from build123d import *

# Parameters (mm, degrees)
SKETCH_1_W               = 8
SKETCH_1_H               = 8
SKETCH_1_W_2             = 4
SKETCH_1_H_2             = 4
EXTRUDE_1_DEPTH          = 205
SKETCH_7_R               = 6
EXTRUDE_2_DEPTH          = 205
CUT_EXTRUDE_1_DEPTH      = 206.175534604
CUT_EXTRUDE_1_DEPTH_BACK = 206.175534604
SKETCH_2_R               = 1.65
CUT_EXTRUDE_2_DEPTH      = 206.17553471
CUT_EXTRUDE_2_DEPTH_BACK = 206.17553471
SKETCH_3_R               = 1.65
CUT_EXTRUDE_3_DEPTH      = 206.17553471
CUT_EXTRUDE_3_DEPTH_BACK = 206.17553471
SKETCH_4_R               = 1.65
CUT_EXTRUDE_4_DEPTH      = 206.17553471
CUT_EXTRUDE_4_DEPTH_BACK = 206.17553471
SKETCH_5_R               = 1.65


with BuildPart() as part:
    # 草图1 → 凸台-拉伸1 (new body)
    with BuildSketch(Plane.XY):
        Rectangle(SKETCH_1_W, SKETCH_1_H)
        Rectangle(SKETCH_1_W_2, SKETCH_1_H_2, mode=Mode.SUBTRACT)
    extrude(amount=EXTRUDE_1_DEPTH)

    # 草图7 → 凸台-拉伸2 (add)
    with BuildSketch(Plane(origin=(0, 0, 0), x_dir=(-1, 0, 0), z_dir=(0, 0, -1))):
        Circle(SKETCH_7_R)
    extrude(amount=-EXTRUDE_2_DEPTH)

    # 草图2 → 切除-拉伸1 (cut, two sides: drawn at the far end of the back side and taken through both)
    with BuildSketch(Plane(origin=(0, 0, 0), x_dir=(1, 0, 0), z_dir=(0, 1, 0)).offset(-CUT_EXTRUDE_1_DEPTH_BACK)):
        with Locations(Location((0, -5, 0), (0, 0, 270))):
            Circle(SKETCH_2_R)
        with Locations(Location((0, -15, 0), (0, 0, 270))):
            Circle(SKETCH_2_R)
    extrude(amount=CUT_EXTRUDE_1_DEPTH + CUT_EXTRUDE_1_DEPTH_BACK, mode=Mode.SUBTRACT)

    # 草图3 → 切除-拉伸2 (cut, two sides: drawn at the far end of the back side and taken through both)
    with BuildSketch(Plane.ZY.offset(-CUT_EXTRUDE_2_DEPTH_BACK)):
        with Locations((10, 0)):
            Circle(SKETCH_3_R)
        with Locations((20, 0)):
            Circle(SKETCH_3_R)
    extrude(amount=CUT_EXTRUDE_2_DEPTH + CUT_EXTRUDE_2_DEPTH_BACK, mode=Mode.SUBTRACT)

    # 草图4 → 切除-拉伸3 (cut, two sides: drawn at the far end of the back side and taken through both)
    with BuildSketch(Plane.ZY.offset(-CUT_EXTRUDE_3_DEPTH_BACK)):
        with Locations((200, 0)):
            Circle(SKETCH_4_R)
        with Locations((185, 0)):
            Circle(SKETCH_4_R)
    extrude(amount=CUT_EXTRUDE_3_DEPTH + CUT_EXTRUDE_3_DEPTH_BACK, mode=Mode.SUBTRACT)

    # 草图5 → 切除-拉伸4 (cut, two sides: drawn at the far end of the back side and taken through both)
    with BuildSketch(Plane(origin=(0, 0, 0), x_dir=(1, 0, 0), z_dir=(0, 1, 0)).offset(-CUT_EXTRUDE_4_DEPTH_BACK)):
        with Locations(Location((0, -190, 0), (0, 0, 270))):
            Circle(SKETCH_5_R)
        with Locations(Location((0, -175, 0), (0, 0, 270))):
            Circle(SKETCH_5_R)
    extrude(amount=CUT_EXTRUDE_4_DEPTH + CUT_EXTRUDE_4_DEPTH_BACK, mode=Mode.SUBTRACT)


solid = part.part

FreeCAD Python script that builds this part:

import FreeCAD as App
import Part
import Sketcher
from FreeCAD import Vector


def add_polygon(sketch, points):
    """Adds a closed chain of lines whose ends are joined by coincident constraints."""
    first, n = sketch.GeometryCount, len(points)
    for a, b in zip(points, points[1:] + points[:1]):
        sketch.addGeometry(Part.LineSegment(App.Vector(*a, 0), App.Vector(*b, 0)), False)
    for i in range(n):
        sketch.addConstraint(Sketcher.Constraint("Coincident", first + i, 2, first + (i + 1) % n, 1))

doc = App.newDocument("Part")
body = doc.addObject("PartDesign::Body", "Body")

# Sketch on XY plane
sketch1 = body.newObject("Sketcher::SketchObject", "Sketch")
sketch1.AttachmentSupport = (doc.getObject("XY_Plane"), [""])
sketch1.MapMode = "FlatFace"
add_polygon(sketch1, [(-4, 4), (-4, -4), (4, -4), (4, 4)])  # lines 0-3
add_polygon(sketch1, [(2, -2), (-2, -2), (-2, 2), (2, 2)])  # lines 4-7
sketch1.addConstraint([
    Sketcher.Constraint("Vertical", 0),
    Sketcher.Constraint("Horizontal", 1),
    Sketcher.Constraint("Vertical", 2),
    Sketcher.Constraint("Horizontal", 3),
    Sketcher.Constraint("Horizontal", 4),
    Sketcher.Constraint("Vertical", 5),
    Sketcher.Constraint("Horizontal", 6),
    Sketcher.Constraint("Vertical", 7),
    Sketcher.Constraint("Symmetric", 0, 2, 2, 2, -1, 1),
    Sketcher.Constraint("Symmetric", 4, 2, 6, 2, -1, 1),
    Sketcher.Constraint("Equal", 3, 0),
    Sketcher.Constraint("Equal", 6, 5),
    Sketcher.Constraint("DistanceX", 1, 1, 1, 2, 8.0),
    Sketcher.Constraint("DistanceX", 4, 2, 4, 1, 4.0),
])
pad1 = body.newObject("PartDesign::Pad", "Pad")
pad1.Profile = sketch1
pad1.Length = 205

# Sketch on XY plane
sketch2 = body.newObject("Sketcher::SketchObject", "Sketch001")
sketch2.AttachmentSupport = (doc.getObject("XY_Plane"), [""])
sketch2.MapMode = "FlatFace"
sketch2.addGeometry(Part.Circle(Vector(0, 0, 0), Vector(0, 0, 1), 6), False)
sketch2.addConstraint([
    Sketcher.Constraint("Coincident", 0, 3, -1, 1),
    Sketcher.Constraint("Diameter", 0, 12.0),
])
pad2 = body.newObject("PartDesign::Pad", "Pad001")
pad2.Profile = sketch2
pad2.Length = 205

# Sketch on XZ plane
sketch3 = body.newObject("Sketcher::SketchObject", "Sketch002")
sketch3.AttachmentSupport = (doc.getObject("XZ_Plane"), [""])
sketch3.MapMode = "FlatFace"
sketch3.addGeometry([
    Part.Circle(Vector(0, 5, 0), Vector(0, 0, 1), 1.6),
    Part.Circle(Vector(0, 15, 0), Vector(0, 0, 1), 1.6),
], False)
sketch3.addConstraint([
    Sketcher.Constraint("Equal", 0, 1),
    Sketcher.Constraint("PointOnObject", 0, 3, -2),
    Sketcher.Constraint("PointOnObject", 1, 3, -2),
    Sketcher.Constraint("Diameter", 0, 3.3),
    Sketcher.Constraint("DistanceY", -1, 1, 0, 3, 5.0),
    Sketcher.Constraint("DistanceY", -1, 1, 1, 3, 15.0),
])
pocket1 = body.newObject("PartDesign::Pocket", "Pocket")
pocket1.Profile = sketch3
pocket1.Type = "ThroughAll"
pocket1.Midplane = True

# Sketch on YZ plane
sketch4 = body.newObject("Sketcher::SketchObject", "Sketch003")
sketch4.AttachmentSupport = (doc.getObject("YZ_Plane"), [""])
sketch4.MapMode = "FlatFace"
sketch4.addGeometry([
    Part.Circle(Vector(0, 10, 0), Vector(0, 0, 1), 1.6),
    Part.Circle(Vector(0, 20, 0), Vector(0, 0, 1), 1.6),
], False)
sketch4.addConstraint([
    Sketcher.Constraint("Equal", 0, 1),
    Sketcher.Constraint("PointOnObject", 0, 3, -2),
    Sketcher.Constraint("PointOnObject", 1, 3, -2),
    Sketcher.Constraint("Diameter", 0, 3.3),
    Sketcher.Constraint("DistanceY", -1, 1, 0, 3, 10.0),
    Sketcher.Constraint("DistanceY", -1, 1, 1, 3, 20.0),
])
pocket2 = body.newObject("PartDesign::Pocket", "Pocket001")
pocket2.Profile = sketch4
pocket2.Type = "ThroughAll"
pocket2.Midplane = True

# Sketch on YZ plane
sketch5 = body.newObject("Sketcher::SketchObject", "Sketch004")
sketch5.AttachmentSupport = (doc.getObject("YZ_Plane"), [""])
sketch5.MapMode = "FlatFace"
sketch5.addGeometry([
    Part.Circle(Vector(0, 200, 0), Vector(0, 0, 1), 1.6),
    Part.Circle(Vector(0, 185, 0), Vector(0, 0, 1), 1.6),
], False)
sketch5.addConstraint([
    Sketcher.Constraint("Equal", 0, 1),
    Sketcher.Constraint("PointOnObject", 0, 3, -2),
    Sketcher.Constraint("PointOnObject", 1, 3, -2),
    Sketcher.Constraint("Diameter", 0, 3.3),
    Sketcher.Constraint("DistanceY", -1, 1, 0, 3, 200.0),
    Sketcher.Constraint("DistanceY", -1, 1, 1, 3, 185.0),
])
pocket3 = body.newObject("PartDesign::Pocket", "Pocket002")
pocket3.Profile = sketch5
pocket3.Type = "ThroughAll"
pocket3.Midplane = True

# Sketch on XZ plane
sketch6 = body.newObject("Sketcher::SketchObject", "Sketch005")
sketch6.AttachmentSupport = (doc.getObject("XZ_Plane"), [""])
sketch6.MapMode = "FlatFace"
sketch6.addGeometry([
    Part.Circle(Vector(0, 190, 0), Vector(0, 0, 1), 1.6),
    Part.Circle(Vector(0, 175, 0), Vector(0, 0, 1), 1.6),
], False)
sketch6.addConstraint([
    Sketcher.Constraint("Equal", 0, 1),
    Sketcher.Constraint("PointOnObject", 0, 3, -2),
    Sketcher.Constraint("PointOnObject", 1, 3, -2),
    Sketcher.Constraint("Diameter", 0, 3.3),
    Sketcher.Constraint("DistanceY", -1, 1, 0, 3, 190.0),
    Sketcher.Constraint("DistanceY", -1, 1, 1, 3, 175.0),
])
pocket4 = body.newObject("PartDesign::Pocket", "Pocket003")
pocket4.Profile = sketch6
pocket4.Type = "ThroughAll"
pocket4.Midplane = True

doc.recompute()
